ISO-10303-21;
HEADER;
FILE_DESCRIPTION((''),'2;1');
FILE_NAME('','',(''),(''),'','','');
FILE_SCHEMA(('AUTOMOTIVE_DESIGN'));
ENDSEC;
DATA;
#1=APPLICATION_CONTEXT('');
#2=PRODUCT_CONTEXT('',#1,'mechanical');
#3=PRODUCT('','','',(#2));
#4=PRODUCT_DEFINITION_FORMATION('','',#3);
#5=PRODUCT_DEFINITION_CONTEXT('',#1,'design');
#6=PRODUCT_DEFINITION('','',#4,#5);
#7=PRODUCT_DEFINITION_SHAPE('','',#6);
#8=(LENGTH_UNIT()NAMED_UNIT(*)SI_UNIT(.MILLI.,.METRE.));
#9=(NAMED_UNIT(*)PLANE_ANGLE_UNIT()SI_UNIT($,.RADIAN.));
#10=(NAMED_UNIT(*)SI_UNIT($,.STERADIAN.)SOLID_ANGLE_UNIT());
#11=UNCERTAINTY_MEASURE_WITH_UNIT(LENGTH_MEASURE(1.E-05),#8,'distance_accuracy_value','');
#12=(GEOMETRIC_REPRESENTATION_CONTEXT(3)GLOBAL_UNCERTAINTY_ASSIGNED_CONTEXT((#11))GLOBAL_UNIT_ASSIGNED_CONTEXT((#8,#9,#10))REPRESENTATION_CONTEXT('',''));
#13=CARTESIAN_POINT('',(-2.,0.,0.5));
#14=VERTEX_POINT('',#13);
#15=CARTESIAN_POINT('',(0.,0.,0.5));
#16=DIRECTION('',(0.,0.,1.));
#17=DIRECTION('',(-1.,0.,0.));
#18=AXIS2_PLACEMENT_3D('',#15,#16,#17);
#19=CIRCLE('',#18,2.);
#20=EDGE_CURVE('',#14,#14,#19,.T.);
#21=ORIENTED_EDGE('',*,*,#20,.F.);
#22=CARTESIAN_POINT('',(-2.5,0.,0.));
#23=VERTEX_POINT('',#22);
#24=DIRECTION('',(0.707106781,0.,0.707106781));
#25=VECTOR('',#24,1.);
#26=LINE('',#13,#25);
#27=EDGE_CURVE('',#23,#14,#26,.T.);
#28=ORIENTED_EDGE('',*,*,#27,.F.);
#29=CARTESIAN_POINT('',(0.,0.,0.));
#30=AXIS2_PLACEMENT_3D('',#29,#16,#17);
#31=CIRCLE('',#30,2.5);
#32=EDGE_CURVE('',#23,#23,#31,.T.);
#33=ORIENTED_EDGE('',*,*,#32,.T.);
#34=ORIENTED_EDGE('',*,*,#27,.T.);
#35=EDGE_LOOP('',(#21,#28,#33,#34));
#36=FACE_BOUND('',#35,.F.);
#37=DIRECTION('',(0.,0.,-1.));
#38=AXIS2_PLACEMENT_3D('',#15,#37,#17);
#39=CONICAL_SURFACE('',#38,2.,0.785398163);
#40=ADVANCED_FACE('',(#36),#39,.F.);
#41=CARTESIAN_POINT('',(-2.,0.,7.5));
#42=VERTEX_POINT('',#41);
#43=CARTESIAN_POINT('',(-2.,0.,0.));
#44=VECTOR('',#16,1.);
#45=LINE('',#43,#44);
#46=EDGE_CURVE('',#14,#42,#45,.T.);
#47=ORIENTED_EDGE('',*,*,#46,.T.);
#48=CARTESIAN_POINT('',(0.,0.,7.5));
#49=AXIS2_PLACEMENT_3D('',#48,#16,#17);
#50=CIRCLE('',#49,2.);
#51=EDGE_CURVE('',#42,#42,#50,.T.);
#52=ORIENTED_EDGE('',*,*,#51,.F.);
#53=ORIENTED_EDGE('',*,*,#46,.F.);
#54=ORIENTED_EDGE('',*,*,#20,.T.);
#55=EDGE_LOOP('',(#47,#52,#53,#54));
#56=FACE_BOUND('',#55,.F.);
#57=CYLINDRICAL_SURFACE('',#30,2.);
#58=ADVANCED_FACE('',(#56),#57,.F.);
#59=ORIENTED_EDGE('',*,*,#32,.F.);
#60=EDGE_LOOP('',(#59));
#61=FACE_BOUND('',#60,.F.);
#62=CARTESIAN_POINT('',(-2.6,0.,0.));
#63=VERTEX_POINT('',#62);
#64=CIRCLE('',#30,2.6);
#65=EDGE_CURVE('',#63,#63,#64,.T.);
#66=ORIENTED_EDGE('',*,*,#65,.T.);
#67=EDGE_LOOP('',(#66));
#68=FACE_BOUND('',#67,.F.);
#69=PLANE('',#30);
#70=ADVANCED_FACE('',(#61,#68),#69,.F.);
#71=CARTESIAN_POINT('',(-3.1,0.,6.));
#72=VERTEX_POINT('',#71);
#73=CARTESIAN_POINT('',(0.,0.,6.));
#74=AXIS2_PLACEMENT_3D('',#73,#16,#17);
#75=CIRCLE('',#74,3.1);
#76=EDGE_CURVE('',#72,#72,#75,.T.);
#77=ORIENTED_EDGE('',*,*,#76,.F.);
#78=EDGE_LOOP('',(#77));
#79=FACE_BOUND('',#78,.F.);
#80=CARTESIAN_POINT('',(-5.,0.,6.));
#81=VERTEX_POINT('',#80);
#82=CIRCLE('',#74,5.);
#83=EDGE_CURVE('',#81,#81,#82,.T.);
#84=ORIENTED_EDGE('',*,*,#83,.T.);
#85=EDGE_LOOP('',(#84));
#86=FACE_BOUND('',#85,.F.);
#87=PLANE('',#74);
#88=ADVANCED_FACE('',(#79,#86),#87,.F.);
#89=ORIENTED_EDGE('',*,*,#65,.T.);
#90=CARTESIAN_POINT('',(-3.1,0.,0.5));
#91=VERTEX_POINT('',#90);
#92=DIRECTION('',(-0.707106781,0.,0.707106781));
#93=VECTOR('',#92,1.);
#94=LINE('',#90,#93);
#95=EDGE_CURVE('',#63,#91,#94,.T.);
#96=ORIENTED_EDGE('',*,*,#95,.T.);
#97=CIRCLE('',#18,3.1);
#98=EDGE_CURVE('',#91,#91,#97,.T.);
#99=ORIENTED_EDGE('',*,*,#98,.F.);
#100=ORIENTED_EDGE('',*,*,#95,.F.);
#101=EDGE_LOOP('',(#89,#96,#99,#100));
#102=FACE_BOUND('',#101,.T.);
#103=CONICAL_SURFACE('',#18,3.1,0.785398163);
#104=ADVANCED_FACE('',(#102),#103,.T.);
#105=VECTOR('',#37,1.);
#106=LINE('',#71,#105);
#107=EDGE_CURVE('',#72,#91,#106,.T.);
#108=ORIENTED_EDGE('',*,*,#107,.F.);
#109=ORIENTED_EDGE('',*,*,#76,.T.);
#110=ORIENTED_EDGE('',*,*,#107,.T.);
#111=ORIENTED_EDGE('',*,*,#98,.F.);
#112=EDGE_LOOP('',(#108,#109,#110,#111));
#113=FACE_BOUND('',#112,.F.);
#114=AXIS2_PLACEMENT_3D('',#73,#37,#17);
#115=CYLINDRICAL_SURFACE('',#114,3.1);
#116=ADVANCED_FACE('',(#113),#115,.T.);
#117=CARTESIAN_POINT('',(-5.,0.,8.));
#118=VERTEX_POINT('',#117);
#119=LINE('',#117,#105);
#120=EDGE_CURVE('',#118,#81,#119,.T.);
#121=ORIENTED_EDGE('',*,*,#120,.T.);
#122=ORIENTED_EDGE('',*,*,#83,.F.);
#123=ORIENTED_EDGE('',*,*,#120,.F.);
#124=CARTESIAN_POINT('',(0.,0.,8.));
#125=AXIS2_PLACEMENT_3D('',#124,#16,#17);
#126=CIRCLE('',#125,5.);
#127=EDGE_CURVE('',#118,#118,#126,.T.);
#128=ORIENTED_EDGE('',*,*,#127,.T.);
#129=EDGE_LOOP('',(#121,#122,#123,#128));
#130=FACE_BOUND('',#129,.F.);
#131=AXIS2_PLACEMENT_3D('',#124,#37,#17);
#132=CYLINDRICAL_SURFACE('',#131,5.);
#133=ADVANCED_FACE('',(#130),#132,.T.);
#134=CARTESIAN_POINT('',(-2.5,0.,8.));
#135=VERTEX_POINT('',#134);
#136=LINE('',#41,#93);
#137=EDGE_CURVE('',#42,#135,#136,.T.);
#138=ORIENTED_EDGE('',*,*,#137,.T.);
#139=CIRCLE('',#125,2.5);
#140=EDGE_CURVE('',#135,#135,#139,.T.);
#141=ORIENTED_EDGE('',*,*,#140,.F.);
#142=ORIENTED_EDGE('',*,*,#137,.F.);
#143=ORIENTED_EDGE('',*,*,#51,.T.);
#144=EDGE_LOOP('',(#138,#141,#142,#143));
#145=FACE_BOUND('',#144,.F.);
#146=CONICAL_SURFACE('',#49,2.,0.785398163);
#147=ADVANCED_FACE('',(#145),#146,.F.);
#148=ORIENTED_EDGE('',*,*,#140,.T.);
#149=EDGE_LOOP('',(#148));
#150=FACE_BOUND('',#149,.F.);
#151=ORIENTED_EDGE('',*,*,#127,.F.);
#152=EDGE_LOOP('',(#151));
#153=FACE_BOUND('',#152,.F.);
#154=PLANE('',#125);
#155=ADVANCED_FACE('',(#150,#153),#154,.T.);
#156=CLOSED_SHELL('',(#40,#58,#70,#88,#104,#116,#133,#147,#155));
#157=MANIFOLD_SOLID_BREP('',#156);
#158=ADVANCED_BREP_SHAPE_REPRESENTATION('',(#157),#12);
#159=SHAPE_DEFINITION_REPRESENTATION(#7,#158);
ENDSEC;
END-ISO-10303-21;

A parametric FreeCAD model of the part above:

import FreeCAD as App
import Part
import Sketcher

V = App.Vector


def edges_at(feature, points):
    """Names of the edges that pass closest to the given points."""
    edges = feature.Shape.Edges
    near = lambda p: min(range(len(edges)), key=lambda i: edges[i].distToShape(Part.Vertex(*p))[0])
    return sorted({f"Edge{near(p) + 1}" for p in points})


def add_polygon(sketch, points):
    """Adds a closed chain of lines whose ends are joined by coincident constraints."""
    first, n = sketch.GeometryCount, len(points)
    for a, b in zip(points, points[1:] + points[:1]):
        sketch.addGeometry(Part.LineSegment(App.Vector(*a, 0), App.Vector(*b, 0)), False)
    for i in range(n):
        sketch.addConstraint(Sketcher.Constraint("Coincident", first + i, 2, first + (i + 1) % n, 1))

doc = App.newDocument("Part")
body = doc.addObject("PartDesign::Body", "Body")

sketch1 = body.newObject("Sketcher::SketchObject", "Sketch")
sketch1.AttachmentSupport = (doc.getObject("XZ_Plane"), [""])
sketch1.MapMode = "FlatFace"
add_polygon(sketch1, [(-3.1, 0), (-2, 0), (-2, 8), (-5, 8), (-5, 6), (-3.1, 6)])
sketch1.addConstraint([
    Sketcher.Constraint("Horizontal", 0),
    Sketcher.Constraint("Vertical", 1),
    Sketcher.Constraint("Horizontal", 2),
    Sketcher.Constraint("Vertical", 3),
    Sketcher.Constraint("Horizontal", 4),
    Sketcher.Constraint("Vertical", 5),
    Sketcher.Constraint("PointOnObject", 0, 2, -1),
    Sketcher.Constraint("DistanceX", 2, 2, 2, 1, 3.0),
    Sketcher.Constraint("DistanceY", 1, 1, 1, 2, 8.0),
    Sketcher.Constraint("DistanceY", 3, 2, 3, 1, 2.0),
    Sketcher.Constraint("DistanceX", 0, 1, 0, 2, 1.1),
    Sketcher.Constraint("DistanceX", 0, 2, -1, 1, 2.0),
])
revolution = body.newObject("PartDesign::Revolution", "Revolution")
revolution.Profile = sketch1
revolution.ReferenceAxis = (sketch1, ["V_Axis"])
revolution.Angle = 360
doc.recompute()

chamfer = body.newObject("PartDesign::Chamfer", "Chamfer")
chamfer.Base = (revolution, edges_at(revolution, [(2, 0, 8), (2, 0, 0), (3.1, 0, 0)]))
chamfer.Size = 0.5

doc.recompute()
